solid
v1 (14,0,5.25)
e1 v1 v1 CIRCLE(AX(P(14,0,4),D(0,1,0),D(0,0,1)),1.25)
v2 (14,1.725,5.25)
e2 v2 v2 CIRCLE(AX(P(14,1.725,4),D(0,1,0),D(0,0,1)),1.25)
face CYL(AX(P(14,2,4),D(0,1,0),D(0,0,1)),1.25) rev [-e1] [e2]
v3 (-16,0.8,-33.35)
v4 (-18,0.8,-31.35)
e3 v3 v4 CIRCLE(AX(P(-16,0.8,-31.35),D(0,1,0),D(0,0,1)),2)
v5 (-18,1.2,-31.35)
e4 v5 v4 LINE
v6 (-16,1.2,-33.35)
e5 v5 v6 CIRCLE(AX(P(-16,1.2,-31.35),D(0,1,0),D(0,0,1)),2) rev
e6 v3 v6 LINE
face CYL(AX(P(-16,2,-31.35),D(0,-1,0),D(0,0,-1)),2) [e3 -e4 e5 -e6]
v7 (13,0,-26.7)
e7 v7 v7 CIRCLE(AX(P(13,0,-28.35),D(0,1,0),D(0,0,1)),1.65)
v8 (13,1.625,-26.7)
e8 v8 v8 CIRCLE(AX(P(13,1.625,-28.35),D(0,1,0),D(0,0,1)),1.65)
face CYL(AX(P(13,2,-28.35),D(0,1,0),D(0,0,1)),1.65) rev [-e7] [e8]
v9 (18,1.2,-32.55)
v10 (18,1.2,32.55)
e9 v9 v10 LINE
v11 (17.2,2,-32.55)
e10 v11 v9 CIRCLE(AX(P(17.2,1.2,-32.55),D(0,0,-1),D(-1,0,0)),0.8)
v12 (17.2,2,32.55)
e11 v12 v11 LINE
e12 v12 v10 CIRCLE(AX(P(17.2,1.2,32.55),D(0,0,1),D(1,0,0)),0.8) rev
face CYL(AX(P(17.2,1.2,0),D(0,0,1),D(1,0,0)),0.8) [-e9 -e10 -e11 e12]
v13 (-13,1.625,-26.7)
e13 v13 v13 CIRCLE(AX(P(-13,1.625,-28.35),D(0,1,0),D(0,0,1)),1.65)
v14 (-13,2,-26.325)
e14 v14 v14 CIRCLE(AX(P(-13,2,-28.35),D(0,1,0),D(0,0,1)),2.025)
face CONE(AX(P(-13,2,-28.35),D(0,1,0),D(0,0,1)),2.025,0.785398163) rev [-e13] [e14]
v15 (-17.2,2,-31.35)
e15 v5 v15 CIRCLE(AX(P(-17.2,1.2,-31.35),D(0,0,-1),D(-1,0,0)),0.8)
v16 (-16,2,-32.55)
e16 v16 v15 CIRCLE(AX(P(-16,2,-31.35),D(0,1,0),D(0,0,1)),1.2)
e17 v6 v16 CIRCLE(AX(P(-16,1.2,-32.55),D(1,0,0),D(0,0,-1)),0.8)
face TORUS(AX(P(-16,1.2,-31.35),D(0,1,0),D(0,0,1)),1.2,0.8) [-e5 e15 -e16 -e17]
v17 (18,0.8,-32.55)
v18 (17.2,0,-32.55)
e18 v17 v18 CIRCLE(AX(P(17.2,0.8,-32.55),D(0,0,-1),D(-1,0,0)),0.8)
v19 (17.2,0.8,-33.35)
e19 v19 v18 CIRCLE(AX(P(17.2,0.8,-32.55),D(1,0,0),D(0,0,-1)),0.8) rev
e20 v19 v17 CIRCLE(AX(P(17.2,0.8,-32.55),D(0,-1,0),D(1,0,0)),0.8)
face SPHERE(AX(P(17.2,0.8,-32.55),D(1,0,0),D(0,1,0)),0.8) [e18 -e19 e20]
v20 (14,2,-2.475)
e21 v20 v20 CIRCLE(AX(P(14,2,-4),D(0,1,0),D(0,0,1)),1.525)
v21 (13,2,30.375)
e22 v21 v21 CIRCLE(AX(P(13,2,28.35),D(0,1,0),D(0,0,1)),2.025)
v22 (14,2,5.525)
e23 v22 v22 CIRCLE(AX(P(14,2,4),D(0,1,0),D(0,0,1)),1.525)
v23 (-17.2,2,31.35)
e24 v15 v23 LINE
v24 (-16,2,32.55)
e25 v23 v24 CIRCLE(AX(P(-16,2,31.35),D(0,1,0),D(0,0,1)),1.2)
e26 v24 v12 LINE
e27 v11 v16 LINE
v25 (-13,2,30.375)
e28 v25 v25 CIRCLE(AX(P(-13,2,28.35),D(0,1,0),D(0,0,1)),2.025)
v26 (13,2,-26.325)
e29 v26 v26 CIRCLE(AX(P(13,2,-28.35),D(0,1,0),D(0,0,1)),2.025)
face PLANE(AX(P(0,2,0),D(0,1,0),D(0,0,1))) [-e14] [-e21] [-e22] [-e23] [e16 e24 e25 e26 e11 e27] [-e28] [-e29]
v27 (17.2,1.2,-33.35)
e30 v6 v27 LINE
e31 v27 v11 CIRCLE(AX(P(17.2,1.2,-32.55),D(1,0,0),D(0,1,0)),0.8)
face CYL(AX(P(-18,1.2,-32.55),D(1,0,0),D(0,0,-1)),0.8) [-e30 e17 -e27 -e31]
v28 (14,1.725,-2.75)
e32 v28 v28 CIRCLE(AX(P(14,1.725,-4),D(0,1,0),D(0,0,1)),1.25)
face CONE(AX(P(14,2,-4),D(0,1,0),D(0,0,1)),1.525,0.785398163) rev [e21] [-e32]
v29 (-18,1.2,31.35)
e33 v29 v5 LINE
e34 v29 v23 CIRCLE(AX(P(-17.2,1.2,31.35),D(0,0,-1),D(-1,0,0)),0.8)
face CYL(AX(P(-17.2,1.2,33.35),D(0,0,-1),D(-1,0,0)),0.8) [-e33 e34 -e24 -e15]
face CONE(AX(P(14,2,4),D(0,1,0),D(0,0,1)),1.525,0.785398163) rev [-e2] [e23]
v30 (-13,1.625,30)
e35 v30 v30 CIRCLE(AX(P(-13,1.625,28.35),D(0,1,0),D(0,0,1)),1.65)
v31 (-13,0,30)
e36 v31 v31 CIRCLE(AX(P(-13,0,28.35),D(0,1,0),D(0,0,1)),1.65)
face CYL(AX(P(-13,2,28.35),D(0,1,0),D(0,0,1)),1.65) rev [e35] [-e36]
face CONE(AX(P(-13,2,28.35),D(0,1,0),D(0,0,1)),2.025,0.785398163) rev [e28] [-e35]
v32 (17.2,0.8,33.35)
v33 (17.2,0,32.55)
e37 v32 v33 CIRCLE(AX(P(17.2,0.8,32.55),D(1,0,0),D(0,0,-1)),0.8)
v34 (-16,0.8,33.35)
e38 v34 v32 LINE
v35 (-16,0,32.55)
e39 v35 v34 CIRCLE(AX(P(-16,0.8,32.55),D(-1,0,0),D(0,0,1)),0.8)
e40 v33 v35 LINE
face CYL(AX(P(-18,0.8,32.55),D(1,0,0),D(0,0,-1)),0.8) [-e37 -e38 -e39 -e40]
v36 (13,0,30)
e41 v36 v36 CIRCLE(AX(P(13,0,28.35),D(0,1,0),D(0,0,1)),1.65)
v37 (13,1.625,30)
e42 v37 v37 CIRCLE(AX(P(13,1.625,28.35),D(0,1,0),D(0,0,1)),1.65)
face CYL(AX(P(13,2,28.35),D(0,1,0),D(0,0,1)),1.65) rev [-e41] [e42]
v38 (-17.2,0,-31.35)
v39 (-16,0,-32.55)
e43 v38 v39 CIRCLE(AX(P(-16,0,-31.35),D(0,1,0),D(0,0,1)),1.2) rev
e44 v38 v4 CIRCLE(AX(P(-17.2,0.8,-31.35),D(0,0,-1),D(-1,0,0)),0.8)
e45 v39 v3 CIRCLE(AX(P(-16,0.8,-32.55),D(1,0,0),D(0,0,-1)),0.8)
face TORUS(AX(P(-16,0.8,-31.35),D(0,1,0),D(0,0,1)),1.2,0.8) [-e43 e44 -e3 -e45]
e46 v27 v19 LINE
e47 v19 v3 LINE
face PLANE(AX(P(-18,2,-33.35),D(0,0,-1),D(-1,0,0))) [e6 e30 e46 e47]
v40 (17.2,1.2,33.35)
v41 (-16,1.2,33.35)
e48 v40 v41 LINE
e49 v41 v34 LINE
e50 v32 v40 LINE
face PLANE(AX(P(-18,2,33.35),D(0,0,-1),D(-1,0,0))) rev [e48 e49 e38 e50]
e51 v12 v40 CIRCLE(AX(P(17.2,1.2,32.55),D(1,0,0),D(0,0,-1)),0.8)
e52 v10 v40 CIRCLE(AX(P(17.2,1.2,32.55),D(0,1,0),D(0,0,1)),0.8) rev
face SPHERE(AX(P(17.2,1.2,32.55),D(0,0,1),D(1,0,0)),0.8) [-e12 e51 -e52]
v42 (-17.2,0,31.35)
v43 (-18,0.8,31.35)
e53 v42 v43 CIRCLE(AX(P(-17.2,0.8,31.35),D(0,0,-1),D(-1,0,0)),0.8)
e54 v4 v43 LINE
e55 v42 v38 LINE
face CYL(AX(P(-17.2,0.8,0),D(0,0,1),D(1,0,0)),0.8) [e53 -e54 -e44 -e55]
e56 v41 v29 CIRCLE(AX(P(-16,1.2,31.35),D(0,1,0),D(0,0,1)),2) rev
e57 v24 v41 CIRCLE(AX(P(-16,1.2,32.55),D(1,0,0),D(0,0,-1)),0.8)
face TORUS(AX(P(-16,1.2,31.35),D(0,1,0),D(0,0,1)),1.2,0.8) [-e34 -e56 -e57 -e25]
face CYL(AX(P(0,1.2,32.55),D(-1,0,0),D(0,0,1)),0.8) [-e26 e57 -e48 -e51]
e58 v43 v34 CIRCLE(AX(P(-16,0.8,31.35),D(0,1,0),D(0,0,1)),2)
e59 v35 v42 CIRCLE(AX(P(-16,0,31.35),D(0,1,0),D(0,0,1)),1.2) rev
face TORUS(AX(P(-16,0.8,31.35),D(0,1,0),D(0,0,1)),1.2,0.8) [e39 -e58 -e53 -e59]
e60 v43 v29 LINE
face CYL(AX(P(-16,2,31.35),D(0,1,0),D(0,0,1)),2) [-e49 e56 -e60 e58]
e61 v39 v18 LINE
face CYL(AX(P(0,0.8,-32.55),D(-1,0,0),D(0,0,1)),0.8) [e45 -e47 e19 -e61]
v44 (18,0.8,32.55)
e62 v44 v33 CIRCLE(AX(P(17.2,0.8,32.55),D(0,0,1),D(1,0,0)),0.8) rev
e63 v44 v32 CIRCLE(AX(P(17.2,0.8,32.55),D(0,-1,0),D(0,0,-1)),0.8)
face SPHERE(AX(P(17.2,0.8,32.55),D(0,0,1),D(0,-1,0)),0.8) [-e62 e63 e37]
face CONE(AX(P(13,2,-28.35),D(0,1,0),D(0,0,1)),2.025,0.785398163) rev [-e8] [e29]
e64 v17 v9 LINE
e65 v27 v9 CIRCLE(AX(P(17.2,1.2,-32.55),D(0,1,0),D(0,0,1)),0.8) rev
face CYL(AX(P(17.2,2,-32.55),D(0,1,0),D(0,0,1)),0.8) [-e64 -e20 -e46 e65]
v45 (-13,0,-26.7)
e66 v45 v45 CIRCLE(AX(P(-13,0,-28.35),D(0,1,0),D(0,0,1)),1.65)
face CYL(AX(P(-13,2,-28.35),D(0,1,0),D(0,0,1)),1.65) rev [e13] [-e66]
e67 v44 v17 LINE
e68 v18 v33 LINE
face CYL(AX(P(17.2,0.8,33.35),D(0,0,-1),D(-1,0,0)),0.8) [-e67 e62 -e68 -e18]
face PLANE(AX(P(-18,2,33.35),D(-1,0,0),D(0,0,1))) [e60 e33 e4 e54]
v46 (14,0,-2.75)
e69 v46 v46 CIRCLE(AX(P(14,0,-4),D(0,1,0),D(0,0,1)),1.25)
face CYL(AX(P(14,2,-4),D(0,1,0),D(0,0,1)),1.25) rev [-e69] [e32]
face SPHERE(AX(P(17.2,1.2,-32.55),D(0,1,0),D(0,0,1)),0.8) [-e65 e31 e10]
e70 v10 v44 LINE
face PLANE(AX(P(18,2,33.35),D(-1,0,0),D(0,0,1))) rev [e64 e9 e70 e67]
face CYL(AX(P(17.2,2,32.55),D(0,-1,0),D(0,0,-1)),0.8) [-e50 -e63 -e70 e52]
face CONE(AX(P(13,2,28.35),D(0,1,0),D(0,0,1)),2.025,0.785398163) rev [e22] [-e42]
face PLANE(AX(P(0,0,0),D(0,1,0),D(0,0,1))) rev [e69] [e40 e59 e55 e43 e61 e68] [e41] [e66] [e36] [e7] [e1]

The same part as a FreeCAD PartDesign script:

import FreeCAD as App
import Part
import Sketcher
from FreeCAD import Vector
Q = App.Units.Quantity


def edges_at(feature, points):
    """Names of the edges that pass closest to the given points."""
    edges = feature.Shape.Edges
    near = lambda p: min(range(len(edges)), key=lambda i: edges[i].distToShape(Part.Vertex(*p))[0])
    return sorted({f"Edge{near(p) + 1}" for p in points})

doc = App.newDocument("Part")
body = doc.addObject("PartDesign::Body", "Body")

sketch1 = body.newObject("Sketcher::SketchObject", "Sketch")
sketch1.AttachmentSupport = (doc.getObject("XZ_Plane"), [""])
sketch1.MapMode = "FlatFace"
sketch1.addGeometry([
    Part.LineSegment(Vector(-18, -33, 0), Vector(-18, 33, 0)),
    Part.LineSegment(Vector(-18, 33, 0), Vector(18, 33, 0)),
    Part.LineSegment(Vector(18, 33, 0), Vector(18, -33, 0)),
    Part.LineSegment(Vector(18, -33, 0), Vector(-18, -33, 0)),
], False)
sketch1.addConstraint([
    Sketcher.Constraint("Coincident", 0, 2, 1, 1),
    Sketcher.Constraint("Coincident", 1, 2, 2, 1),
    Sketcher.Constraint("Coincident", 2, 2, 3, 1),
    Sketcher.Constraint("Coincident", 3, 2, 0, 1),
    Sketcher.Constraint("Vertical", 0),
    Sketcher.Constraint("Horizontal", 1),
    Sketcher.Constraint("Vertical", 2),
    Sketcher.Constraint("Horizontal", 3),
    Sketcher.Constraint("Symmetric", 0, 2, 2, 2, -1, 1),
    Sketcher.Constraint("DistanceX", 1, 1, 1, 2, 36.0),
    Sketcher.Constraint("DistanceY", 0, 1, 0, 2, 66.7),
])
pad1 = body.newObject("PartDesign::Pad", "Pad")
pad1.Profile = sketch1
pad1.Length = 2
pad1.Reversed = True

sketch2 = body.newObject("Sketcher::SketchObject", "Sketch001")
sketch2.AttachmentSupport = (doc.getObject("YZ_Plane"), [""])
sketch2.MapMode = "FlatFace"
sketch2.AttachmentOffset = App.Placement(Vector(0, 0, -13), App.Rotation())
sketch2.addGeometry([
    Part.LineSegment(Vector(0, 28.4, 0), Vector(2, 28.4, 0)),
    Part.LineSegment(Vector(2, 28.4, 0), Vector(2, 30.4, 0)),
    Part.LineSegment(Vector(2, 30.4, 0), Vector(1.6, 30, 0)),
    Part.LineSegment(Vector(1.6, 30, 0), Vector(0, 30, 0)),
    Part.LineSegment(Vector(0, 30, 0), Vector(0, 28.4, 0)),
], False)
sketch2.addGeometry(Part.LineSegment(Vector(2, 28.4, 0), Vector(0, 28.4, 0)), True)
sketch2.addConstraint([
    Sketcher.Constraint("Coincident", 0, 2, 1, 1),
    Sketcher.Constraint("Coincident", 1, 2, 2, 1),
    Sketcher.Constraint("Coincident", 2, 2, 3, 1),
    Sketcher.Constraint("Coincident", 3, 2, 4, 1),
    Sketcher.Constraint("Coincident", 4, 2, 0, 1),
    Sketcher.Constraint("Horizontal", 0),
    Sketcher.Constraint("Vertical", 1),
    Sketcher.Constraint("Horizontal", 3),
    Sketcher.Constraint("Vertical", 4),
    Sketcher.Constraint("Horizontal", 5),
    Sketcher.Constraint("Coincident", 5, 1, 0, 2),
    Sketcher.Constraint("PointOnObject", 3, 2, -2),
    Sketcher.Constraint("PointOnObject", 5, 2, -2),
    Sketcher.Constraint("DistanceX", 0, 1, 0, 2, 2.0),
    Sketcher.Constraint("Angle", 2, Q("-135 deg")),
    Sketcher.Constraint("DistanceY", -1, 1, 2, 2, 30.0),
    Sketcher.Constraint("DistanceY", 4, 2, 4, 1, 1.65),
    Sketcher.Constraint("DistanceX", 3, 2, 3, 1, 1.625),
])
groove = body.newObject("PartDesign::Groove", "Groove")
groove.Profile = sketch2
groove.ReferenceAxis = (sketch2, ["Axis0"])
groove.Angle = 360
doc.recompute()

linearpattern = body.newObject("PartDesign::LinearPattern", "LinearPattern")
linearpattern.Originals = [groove]
linearpattern.Direction = (doc.getObject("Z_Axis"), [""])
linearpattern.Mode = "offset"
linearpattern.Offset = 56.7
linearpattern.Occurrences = 2
linearpattern.Reversed = True
body.Tip = linearpattern
doc.recompute()

datumline = body.newObject("PartDesign::Line", "DatumLine")
datumline.Placement = App.Placement(Vector(0, 0, 0), App.Rotation(Vector(0, 0, 1), Vector(0.416820309, 0, -0.908988905)))
linearpattern2 = body.newObject("PartDesign::LinearPattern", "LinearPattern001")
linearpattern2.Originals = [groove]
linearpattern2.Direction = (datumline, [""])
linearpattern2.Mode = "offset"
linearpattern2.Offset = 62.376999
linearpattern2.Occurrences = 2
body.Tip = linearpattern2
doc.recompute()

linearpattern3 = body.newObject("PartDesign::LinearPattern", "LinearPattern002")
linearpattern3.Originals = [groove]
linearpattern3.Direction = (doc.getObject("X_Axis"), [""])
linearpattern3.Mode = "offset"
linearpattern3.Offset = 26
linearpattern3.Occurrences = 2
body.Tip = linearpattern3
doc.recompute()

fillet = body.newObject("PartDesign::Fillet", "Fillet")
fillet.Base = (linearpattern3, edges_at(linearpattern3, [(-18, 1, 33.35), (-18, 1, -33.35)]))
fillet.Radius = 2

sketch3 = body.newObject("Sketcher::SketchObject", "Sketch002")
sketch3.AttachmentSupport = (doc.getObject("XZ_Plane"), [""])
sketch3.MapMode = "FlatFace"
sketch3.AttachmentOffset = App.Placement(Vector(0, 0, -2), App.Rotation())
sketch3.addGeometry([
    Part.Circle(Vector(14, 4, 0), Vector(0, 0, 1), 1.2),
    Part.Circle(Vector(14, -4, 0), Vector(0, 0, 1), 1.2),
], False)
sketch3.addConstraint([
    Sketcher.Constraint("Equal", 0, 1),
    Sketcher.Constraint("Symmetric", 0, 3, 1, 3, -1),
    Sketcher.Constraint("Diameter", 0, 2.5),
    Sketcher.Constraint("DistanceX", -1, 1, 0, 3, 14.0),
    Sketcher.Constraint("DistanceY", -1, 1, 0, 3, 4.0),
])
doc.recompute()
hole = body.newObject("PartDesign::Hole", "Hole")
hole.Profile = sketch3
hole.ThreadType = "None"
hole.Diameter = 2.5
hole.DepthType = "ThroughAll"
hole.HoleCutType = "Countersink"
hole.HoleCutDiameter = 3.05
hole.HoleCutCountersinkAngle = 90
hole.Reversed = True
doc.recompute()

fillet2 = body.newObject("PartDesign::Fillet", "Fillet001")
fillet2.Base = (hole, edges_at(hole, [
    (1, 0, 33.35),
    (1, 2, 33.35),
    (-18, 0, 0),
    (1, 0, -33.35),
    (-17.414, 0, -32.764),
    (-17.414, 0, 32.764),
    (-18, 2, 0),
    (1, 2, -33.35),
    (-17.414, 2, -32.764),
    (-17.414, 2, 32.764),
    (18, 0, 0),
    (18, 1, -33.35),
    (18, 1, 33.35),
    (18, 2, 0),
]))
fillet2.Radius = 0.8

doc.recompute()
